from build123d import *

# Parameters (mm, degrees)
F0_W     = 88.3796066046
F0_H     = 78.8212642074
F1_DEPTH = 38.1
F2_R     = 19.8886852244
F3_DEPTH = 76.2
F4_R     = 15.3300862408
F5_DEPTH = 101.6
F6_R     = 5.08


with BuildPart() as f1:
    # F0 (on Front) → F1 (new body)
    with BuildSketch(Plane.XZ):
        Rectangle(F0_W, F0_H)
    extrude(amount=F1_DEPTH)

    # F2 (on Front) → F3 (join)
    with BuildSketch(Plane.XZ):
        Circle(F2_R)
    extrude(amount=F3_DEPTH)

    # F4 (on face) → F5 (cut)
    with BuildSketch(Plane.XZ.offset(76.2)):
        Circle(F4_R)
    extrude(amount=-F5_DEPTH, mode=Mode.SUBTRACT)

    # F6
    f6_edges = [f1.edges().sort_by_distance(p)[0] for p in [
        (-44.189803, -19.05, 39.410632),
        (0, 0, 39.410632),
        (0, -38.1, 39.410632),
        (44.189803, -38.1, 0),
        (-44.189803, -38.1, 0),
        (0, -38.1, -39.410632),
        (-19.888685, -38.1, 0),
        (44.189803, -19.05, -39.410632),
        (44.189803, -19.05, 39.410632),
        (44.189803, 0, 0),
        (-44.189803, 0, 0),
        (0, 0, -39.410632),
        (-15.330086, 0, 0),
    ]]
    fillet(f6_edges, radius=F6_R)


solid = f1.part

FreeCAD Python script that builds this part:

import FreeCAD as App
import Part
import Sketcher
Q = App.Units.Quantity


def edges_at(feature, points):
    """Names of the edges that pass closest to the given points."""
    edges = feature.Shape.Edges
    near = lambda p: min(range(len(edges)), key=lambda i: edges[i].distToShape(Part.Vertex(*p))[0])
    return sorted({f"Edge{near(p) + 1}" for p in points})


def add_polygon(sketch, points):
    """Adds a closed chain of lines whose ends are joined by coincident constraints."""
    first, n = sketch.GeometryCount, len(points)
    for a, b in zip(points, points[1:] + points[:1]):
        sketch.addGeometry(Part.LineSegment(App.Vector(*a, 0), App.Vector(*b, 0)), False)
    for i in range(n):
        sketch.addConstraint(Sketcher.Constraint("Coincident", first + i, 2, first + (i + 1) % n, 1))

doc = App.newDocument("Part")
body = doc.addObject("PartDesign::Body", "Body")

# Sketch on XZ plane
sketch1 = body.newObject("Sketcher::SketchObject", "Sketch")
sketch1.AttachmentSupport = (doc.getObject("XZ_Plane"), [""])
sketch1.MapMode = "FlatFace"
add_polygon(sketch1, [(-44.189803, 39.410632), (-44.189803, -39.410632), (44.189803, -39.410632), (44.189803, 39.410632)])  # lines 0-3
sketch1.addConstraint(Sketcher.Constraint("Vertical", 0))
sketch1.addConstraint(Sketcher.Constraint("Horizontal", 1))
sketch1.addConstraint(Sketcher.Constraint("Vertical", 2))
sketch1.addConstraint(Sketcher.Constraint("Horizontal", 3))
sketch1.addConstraint(Sketcher.Constraint("Symmetric", 0, 2, 2, 2, -1, 1))
sketch1.addConstraint(Sketcher.Constraint("DistanceX", 1, 1, 1, 2, Q("88.379607 mm")))
sketch1.addConstraint(Sketcher.Constraint("DistanceY", 0, 2, 0, 1, Q("78.821264 mm")))
pad1 = body.newObject("PartDesign::Pad", "Pad")
pad1.Profile = sketch1
pad1.Length = Q("1.5 in")

# Sketch on XZ plane
sketch2 = body.newObject("Sketcher::SketchObject", "Sketch001")
sketch2.AttachmentSupport = (doc.getObject("XZ_Plane"), [""])
sketch2.MapMode = "FlatFace"
sketch2.addGeometry(Part.Circle(App.Vector(0, 0, 0), App.Vector(0, 0, 1), 19.888685), False)
sketch2.addConstraint(Sketcher.Constraint("Coincident", 0, 3, -1, 1))
sketch2.addConstraint(Sketcher.Constraint("Diameter", 0, Q("39.77737 mm")))
pad2 = body.newObject("PartDesign::Pad", "Pad001")
pad2.Profile = sketch2
pad2.Length = Q("3 in")

# Sketch on XZ plane
sketch3 = body.newObject("Sketcher::SketchObject", "Sketch002")
sketch3.AttachmentSupport = (doc.getObject("XZ_Plane"), [""])
sketch3.MapMode = "FlatFace"
sketch3.AttachmentOffset = App.Placement(App.Vector(0, 0, 3 * 25.4), App.Rotation())
sketch3.addGeometry(Part.Circle(App.Vector(0, 0, 0), App.Vector(0, 0, 1), 15.330086), False)
sketch3.addConstraint(Sketcher.Constraint("Coincident", 0, 3, -1, 1))
sketch3.addConstraint(Sketcher.Constraint("Diameter", 0, Q("30.660172 mm")))
pocket1 = body.newObject("PartDesign::Pocket", "Pocket")
pocket1.Profile = sketch3
pocket1.Length = Q("4 in")
doc.recompute()

fillet = body.newObject("PartDesign::Fillet", "Fillet")
fillet.Base = (pocket1, edges_at(pocket1, [
    (-44.19, -19.05, 39.411),
    (0, 0, 39.411),
    (0, -38.1, 39.411),
    (44.19, -38.1, 0),
    (-44.19, -38.1, 0),
    (0, -38.1, -39.411),
    (-19.889, -38.1, 0),
    (44.19, -19.05, -39.411),
    (44.19, -19.05, 39.411),
    (44.19, 0, 0),
    (-44.19, 0, 0),
    (0, 0, -39.411),
    (-15.33, 0, 0),
]))
fillet.Radius = Q("0.2 in")

doc.recompute()
